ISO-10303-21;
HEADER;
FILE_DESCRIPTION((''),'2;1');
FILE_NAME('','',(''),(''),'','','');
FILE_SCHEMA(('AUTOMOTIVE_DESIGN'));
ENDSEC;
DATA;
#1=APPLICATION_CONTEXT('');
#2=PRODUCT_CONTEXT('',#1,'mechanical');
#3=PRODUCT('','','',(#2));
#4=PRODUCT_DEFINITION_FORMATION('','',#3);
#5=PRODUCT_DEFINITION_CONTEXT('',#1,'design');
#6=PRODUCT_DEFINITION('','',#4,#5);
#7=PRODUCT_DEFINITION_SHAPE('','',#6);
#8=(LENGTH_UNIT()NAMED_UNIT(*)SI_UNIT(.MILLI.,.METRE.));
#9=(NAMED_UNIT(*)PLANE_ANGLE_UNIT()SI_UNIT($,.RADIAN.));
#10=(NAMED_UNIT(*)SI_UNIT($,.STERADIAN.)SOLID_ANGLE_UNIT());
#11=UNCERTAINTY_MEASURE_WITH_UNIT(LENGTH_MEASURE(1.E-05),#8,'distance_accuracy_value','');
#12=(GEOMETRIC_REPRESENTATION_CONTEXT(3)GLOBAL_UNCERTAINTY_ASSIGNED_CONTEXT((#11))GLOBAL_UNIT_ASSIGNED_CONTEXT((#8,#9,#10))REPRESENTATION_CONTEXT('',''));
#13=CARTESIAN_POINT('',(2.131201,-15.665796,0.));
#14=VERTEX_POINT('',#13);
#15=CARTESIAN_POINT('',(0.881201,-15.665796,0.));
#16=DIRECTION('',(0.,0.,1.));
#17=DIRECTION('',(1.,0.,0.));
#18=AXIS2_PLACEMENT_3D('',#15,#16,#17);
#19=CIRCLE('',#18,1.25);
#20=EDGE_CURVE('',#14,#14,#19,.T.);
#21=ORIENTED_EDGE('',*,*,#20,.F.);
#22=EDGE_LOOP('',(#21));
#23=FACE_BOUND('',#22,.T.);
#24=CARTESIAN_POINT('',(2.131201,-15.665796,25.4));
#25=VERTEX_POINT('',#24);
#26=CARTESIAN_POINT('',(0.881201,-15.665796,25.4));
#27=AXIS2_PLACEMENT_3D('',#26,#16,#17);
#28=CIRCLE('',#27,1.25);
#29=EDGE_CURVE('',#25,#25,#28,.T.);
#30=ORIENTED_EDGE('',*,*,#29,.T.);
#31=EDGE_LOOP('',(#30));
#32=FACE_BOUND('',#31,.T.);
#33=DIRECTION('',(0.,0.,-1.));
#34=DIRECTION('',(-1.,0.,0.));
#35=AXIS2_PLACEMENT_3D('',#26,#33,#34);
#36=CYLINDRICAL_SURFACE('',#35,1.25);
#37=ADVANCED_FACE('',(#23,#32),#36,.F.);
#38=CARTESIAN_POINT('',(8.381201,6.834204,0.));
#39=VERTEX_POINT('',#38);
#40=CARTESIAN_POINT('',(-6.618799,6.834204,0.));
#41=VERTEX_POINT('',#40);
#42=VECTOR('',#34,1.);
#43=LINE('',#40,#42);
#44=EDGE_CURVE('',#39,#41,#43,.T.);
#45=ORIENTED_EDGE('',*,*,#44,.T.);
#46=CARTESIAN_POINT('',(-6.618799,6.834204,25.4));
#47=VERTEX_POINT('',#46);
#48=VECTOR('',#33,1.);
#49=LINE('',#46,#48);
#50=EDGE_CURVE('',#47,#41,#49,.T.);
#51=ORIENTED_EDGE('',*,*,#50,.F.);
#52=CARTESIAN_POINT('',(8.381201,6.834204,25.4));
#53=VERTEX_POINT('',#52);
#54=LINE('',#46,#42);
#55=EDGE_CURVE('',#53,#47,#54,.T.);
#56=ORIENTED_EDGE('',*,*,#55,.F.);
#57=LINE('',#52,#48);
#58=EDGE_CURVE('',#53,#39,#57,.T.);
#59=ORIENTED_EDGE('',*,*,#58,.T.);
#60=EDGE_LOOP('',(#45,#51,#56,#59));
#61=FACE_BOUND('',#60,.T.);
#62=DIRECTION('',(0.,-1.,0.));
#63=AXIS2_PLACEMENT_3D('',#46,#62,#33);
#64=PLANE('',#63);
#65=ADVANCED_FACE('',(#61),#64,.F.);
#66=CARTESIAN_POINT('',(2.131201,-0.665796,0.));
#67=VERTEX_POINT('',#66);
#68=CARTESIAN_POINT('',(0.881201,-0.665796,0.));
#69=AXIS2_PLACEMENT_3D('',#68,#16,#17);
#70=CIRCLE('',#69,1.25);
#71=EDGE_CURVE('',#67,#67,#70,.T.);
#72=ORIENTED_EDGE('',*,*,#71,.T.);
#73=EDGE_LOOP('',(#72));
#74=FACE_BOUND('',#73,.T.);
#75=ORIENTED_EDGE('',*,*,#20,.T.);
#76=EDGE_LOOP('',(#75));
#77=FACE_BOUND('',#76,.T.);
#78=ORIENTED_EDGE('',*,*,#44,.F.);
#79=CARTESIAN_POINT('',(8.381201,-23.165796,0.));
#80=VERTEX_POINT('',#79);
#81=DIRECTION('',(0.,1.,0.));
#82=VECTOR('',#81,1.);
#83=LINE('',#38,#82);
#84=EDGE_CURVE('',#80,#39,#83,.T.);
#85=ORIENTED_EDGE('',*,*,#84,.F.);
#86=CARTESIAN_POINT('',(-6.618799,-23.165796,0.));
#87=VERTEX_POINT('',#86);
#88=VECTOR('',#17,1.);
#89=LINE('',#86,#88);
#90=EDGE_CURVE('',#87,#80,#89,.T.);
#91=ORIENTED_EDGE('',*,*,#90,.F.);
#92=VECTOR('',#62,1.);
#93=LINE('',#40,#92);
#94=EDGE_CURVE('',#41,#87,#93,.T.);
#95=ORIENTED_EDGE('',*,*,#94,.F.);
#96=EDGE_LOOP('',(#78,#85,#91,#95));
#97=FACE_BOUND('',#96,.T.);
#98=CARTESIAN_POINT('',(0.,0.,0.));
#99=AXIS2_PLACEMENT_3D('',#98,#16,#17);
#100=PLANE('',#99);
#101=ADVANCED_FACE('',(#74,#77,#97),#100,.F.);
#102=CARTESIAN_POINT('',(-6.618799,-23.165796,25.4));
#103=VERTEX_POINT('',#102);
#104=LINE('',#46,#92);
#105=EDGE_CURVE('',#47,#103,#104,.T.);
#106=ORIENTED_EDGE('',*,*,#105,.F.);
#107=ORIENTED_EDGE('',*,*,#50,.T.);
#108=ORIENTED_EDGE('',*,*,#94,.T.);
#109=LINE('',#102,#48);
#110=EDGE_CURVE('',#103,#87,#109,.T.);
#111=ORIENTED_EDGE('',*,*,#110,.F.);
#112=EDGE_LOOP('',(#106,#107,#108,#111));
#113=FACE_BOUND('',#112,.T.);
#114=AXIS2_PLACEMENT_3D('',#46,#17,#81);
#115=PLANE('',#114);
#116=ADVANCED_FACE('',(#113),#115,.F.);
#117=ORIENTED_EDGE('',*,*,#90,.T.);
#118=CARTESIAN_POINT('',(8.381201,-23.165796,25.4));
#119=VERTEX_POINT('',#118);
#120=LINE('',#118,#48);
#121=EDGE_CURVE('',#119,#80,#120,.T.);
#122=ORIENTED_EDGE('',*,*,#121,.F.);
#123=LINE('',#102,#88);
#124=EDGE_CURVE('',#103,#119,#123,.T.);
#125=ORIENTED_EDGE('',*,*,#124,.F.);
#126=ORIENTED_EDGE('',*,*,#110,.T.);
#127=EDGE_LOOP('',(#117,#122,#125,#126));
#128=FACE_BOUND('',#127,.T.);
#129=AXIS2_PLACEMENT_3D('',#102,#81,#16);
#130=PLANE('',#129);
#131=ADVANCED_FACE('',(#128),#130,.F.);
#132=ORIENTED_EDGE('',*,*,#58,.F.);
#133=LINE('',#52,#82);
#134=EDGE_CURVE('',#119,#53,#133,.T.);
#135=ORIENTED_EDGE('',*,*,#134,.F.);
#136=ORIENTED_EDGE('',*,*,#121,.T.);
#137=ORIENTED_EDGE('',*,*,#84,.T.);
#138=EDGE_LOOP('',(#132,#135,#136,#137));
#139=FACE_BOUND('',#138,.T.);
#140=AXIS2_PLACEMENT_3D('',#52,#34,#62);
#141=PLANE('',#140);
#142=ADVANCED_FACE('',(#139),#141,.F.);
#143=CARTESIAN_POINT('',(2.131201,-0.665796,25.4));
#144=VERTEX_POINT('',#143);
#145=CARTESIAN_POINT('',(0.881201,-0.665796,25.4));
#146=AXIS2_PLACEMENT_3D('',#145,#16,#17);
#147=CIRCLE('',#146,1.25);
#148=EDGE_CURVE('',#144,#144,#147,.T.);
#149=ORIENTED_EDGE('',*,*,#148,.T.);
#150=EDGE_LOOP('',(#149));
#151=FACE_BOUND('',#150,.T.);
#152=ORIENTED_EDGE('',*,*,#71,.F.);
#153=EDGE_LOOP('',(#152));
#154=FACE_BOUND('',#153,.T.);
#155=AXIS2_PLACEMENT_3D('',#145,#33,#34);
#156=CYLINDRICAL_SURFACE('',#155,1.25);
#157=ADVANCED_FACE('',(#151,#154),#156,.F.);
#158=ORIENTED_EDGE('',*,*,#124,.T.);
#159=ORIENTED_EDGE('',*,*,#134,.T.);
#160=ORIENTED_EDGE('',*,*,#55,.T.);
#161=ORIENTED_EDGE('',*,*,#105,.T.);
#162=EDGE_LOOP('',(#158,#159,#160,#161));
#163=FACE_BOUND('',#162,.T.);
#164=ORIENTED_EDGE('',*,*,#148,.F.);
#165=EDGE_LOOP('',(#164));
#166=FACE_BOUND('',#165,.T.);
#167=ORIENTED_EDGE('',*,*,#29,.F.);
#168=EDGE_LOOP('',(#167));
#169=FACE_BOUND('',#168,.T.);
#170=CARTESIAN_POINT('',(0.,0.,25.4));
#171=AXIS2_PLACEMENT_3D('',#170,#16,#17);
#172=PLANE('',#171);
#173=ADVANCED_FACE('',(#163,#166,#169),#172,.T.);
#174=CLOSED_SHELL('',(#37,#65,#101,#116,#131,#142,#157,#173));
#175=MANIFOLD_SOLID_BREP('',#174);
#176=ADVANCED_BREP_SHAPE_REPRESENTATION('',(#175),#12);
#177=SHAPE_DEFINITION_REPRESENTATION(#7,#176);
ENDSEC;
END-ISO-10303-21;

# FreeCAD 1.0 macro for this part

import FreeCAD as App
import Part
import Sketcher

V = App.Vector
Q = App.Units.Quantity

doc = App.newDocument("Part")
body = doc.addObject("PartDesign::Body", "Body")

sketch1 = body.newObject("Sketcher::SketchObject", "Sketch")
sketch1.AttachmentSupport = (doc.getObject("XY_Plane"), [""])
sketch1.MapMode = "FlatFace"
sketch1.addGeometry([
    Part.LineSegment(V(-6.6, 6.8, 0), V(-6.6, -23.2, 0)),
    Part.LineSegment(V(-6.6, -23.2, 0), V(8.4, -23.2, 0)),
    Part.LineSegment(V(8.4, -23.2, 0), V(8.4, 6.8, 0)),
    Part.LineSegment(V(8.4, 6.8, 0), V(-6.6, 6.8, 0)),
    Part.Circle(V(0.9, -15.7, 0), V(0, 0, 1), 1.2),
    Part.Circle(V(0.9, -0.7, 0), V(0, 0, 1), 1.2),
], False)
sketch1.addConstraint([
    Sketcher.Constraint("Coincident", 0, 2, 1, 1),
    Sketcher.Constraint("Coincident", 1, 2, 2, 1),
    Sketcher.Constraint("Coincident", 2, 2, 3, 1),
    Sketcher.Constraint("Coincident", 3, 2, 0, 1),
    Sketcher.Constraint("Vertical", 0),
    Sketcher.Constraint("Horizontal", 1),
    Sketcher.Constraint("Vertical", 2),
    Sketcher.Constraint("Horizontal", 3),
    Sketcher.Constraint("Equal", 4, 5),
    Sketcher.Constraint("Vertical", 4, 3, 5, 3),
    Sketcher.Constraint("Diameter", 4, Q("2.5 mm")),
    Sketcher.Constraint("DistanceX", 1, 1, 1, 2, Q("15 mm")),
    Sketcher.Constraint("DistanceY", 0, 2, 0, 1, Q("30 mm")),
    Sketcher.Constraint("DistanceY", 4, 3, 5, 3, Q("15 mm")),
    Sketcher.Constraint("DistanceX", 0, 2, 4, 3, Q("7.5 mm")),
    Sketcher.Constraint("DistanceY", 0, 2, 4, 3, Q("7.5 mm")),
    Sketcher.Constraint("DistanceX", -1, 1, 4, 3, Q("0.881201 mm")),
    Sketcher.Constraint("DistanceY", 4, 3, -1, 1, Q("15.665796 mm")),
])
pad1 = body.newObject("PartDesign::Pad", "Pad")
pad1.Profile = sketch1
pad1.Length = 25.4

doc.recompute()
